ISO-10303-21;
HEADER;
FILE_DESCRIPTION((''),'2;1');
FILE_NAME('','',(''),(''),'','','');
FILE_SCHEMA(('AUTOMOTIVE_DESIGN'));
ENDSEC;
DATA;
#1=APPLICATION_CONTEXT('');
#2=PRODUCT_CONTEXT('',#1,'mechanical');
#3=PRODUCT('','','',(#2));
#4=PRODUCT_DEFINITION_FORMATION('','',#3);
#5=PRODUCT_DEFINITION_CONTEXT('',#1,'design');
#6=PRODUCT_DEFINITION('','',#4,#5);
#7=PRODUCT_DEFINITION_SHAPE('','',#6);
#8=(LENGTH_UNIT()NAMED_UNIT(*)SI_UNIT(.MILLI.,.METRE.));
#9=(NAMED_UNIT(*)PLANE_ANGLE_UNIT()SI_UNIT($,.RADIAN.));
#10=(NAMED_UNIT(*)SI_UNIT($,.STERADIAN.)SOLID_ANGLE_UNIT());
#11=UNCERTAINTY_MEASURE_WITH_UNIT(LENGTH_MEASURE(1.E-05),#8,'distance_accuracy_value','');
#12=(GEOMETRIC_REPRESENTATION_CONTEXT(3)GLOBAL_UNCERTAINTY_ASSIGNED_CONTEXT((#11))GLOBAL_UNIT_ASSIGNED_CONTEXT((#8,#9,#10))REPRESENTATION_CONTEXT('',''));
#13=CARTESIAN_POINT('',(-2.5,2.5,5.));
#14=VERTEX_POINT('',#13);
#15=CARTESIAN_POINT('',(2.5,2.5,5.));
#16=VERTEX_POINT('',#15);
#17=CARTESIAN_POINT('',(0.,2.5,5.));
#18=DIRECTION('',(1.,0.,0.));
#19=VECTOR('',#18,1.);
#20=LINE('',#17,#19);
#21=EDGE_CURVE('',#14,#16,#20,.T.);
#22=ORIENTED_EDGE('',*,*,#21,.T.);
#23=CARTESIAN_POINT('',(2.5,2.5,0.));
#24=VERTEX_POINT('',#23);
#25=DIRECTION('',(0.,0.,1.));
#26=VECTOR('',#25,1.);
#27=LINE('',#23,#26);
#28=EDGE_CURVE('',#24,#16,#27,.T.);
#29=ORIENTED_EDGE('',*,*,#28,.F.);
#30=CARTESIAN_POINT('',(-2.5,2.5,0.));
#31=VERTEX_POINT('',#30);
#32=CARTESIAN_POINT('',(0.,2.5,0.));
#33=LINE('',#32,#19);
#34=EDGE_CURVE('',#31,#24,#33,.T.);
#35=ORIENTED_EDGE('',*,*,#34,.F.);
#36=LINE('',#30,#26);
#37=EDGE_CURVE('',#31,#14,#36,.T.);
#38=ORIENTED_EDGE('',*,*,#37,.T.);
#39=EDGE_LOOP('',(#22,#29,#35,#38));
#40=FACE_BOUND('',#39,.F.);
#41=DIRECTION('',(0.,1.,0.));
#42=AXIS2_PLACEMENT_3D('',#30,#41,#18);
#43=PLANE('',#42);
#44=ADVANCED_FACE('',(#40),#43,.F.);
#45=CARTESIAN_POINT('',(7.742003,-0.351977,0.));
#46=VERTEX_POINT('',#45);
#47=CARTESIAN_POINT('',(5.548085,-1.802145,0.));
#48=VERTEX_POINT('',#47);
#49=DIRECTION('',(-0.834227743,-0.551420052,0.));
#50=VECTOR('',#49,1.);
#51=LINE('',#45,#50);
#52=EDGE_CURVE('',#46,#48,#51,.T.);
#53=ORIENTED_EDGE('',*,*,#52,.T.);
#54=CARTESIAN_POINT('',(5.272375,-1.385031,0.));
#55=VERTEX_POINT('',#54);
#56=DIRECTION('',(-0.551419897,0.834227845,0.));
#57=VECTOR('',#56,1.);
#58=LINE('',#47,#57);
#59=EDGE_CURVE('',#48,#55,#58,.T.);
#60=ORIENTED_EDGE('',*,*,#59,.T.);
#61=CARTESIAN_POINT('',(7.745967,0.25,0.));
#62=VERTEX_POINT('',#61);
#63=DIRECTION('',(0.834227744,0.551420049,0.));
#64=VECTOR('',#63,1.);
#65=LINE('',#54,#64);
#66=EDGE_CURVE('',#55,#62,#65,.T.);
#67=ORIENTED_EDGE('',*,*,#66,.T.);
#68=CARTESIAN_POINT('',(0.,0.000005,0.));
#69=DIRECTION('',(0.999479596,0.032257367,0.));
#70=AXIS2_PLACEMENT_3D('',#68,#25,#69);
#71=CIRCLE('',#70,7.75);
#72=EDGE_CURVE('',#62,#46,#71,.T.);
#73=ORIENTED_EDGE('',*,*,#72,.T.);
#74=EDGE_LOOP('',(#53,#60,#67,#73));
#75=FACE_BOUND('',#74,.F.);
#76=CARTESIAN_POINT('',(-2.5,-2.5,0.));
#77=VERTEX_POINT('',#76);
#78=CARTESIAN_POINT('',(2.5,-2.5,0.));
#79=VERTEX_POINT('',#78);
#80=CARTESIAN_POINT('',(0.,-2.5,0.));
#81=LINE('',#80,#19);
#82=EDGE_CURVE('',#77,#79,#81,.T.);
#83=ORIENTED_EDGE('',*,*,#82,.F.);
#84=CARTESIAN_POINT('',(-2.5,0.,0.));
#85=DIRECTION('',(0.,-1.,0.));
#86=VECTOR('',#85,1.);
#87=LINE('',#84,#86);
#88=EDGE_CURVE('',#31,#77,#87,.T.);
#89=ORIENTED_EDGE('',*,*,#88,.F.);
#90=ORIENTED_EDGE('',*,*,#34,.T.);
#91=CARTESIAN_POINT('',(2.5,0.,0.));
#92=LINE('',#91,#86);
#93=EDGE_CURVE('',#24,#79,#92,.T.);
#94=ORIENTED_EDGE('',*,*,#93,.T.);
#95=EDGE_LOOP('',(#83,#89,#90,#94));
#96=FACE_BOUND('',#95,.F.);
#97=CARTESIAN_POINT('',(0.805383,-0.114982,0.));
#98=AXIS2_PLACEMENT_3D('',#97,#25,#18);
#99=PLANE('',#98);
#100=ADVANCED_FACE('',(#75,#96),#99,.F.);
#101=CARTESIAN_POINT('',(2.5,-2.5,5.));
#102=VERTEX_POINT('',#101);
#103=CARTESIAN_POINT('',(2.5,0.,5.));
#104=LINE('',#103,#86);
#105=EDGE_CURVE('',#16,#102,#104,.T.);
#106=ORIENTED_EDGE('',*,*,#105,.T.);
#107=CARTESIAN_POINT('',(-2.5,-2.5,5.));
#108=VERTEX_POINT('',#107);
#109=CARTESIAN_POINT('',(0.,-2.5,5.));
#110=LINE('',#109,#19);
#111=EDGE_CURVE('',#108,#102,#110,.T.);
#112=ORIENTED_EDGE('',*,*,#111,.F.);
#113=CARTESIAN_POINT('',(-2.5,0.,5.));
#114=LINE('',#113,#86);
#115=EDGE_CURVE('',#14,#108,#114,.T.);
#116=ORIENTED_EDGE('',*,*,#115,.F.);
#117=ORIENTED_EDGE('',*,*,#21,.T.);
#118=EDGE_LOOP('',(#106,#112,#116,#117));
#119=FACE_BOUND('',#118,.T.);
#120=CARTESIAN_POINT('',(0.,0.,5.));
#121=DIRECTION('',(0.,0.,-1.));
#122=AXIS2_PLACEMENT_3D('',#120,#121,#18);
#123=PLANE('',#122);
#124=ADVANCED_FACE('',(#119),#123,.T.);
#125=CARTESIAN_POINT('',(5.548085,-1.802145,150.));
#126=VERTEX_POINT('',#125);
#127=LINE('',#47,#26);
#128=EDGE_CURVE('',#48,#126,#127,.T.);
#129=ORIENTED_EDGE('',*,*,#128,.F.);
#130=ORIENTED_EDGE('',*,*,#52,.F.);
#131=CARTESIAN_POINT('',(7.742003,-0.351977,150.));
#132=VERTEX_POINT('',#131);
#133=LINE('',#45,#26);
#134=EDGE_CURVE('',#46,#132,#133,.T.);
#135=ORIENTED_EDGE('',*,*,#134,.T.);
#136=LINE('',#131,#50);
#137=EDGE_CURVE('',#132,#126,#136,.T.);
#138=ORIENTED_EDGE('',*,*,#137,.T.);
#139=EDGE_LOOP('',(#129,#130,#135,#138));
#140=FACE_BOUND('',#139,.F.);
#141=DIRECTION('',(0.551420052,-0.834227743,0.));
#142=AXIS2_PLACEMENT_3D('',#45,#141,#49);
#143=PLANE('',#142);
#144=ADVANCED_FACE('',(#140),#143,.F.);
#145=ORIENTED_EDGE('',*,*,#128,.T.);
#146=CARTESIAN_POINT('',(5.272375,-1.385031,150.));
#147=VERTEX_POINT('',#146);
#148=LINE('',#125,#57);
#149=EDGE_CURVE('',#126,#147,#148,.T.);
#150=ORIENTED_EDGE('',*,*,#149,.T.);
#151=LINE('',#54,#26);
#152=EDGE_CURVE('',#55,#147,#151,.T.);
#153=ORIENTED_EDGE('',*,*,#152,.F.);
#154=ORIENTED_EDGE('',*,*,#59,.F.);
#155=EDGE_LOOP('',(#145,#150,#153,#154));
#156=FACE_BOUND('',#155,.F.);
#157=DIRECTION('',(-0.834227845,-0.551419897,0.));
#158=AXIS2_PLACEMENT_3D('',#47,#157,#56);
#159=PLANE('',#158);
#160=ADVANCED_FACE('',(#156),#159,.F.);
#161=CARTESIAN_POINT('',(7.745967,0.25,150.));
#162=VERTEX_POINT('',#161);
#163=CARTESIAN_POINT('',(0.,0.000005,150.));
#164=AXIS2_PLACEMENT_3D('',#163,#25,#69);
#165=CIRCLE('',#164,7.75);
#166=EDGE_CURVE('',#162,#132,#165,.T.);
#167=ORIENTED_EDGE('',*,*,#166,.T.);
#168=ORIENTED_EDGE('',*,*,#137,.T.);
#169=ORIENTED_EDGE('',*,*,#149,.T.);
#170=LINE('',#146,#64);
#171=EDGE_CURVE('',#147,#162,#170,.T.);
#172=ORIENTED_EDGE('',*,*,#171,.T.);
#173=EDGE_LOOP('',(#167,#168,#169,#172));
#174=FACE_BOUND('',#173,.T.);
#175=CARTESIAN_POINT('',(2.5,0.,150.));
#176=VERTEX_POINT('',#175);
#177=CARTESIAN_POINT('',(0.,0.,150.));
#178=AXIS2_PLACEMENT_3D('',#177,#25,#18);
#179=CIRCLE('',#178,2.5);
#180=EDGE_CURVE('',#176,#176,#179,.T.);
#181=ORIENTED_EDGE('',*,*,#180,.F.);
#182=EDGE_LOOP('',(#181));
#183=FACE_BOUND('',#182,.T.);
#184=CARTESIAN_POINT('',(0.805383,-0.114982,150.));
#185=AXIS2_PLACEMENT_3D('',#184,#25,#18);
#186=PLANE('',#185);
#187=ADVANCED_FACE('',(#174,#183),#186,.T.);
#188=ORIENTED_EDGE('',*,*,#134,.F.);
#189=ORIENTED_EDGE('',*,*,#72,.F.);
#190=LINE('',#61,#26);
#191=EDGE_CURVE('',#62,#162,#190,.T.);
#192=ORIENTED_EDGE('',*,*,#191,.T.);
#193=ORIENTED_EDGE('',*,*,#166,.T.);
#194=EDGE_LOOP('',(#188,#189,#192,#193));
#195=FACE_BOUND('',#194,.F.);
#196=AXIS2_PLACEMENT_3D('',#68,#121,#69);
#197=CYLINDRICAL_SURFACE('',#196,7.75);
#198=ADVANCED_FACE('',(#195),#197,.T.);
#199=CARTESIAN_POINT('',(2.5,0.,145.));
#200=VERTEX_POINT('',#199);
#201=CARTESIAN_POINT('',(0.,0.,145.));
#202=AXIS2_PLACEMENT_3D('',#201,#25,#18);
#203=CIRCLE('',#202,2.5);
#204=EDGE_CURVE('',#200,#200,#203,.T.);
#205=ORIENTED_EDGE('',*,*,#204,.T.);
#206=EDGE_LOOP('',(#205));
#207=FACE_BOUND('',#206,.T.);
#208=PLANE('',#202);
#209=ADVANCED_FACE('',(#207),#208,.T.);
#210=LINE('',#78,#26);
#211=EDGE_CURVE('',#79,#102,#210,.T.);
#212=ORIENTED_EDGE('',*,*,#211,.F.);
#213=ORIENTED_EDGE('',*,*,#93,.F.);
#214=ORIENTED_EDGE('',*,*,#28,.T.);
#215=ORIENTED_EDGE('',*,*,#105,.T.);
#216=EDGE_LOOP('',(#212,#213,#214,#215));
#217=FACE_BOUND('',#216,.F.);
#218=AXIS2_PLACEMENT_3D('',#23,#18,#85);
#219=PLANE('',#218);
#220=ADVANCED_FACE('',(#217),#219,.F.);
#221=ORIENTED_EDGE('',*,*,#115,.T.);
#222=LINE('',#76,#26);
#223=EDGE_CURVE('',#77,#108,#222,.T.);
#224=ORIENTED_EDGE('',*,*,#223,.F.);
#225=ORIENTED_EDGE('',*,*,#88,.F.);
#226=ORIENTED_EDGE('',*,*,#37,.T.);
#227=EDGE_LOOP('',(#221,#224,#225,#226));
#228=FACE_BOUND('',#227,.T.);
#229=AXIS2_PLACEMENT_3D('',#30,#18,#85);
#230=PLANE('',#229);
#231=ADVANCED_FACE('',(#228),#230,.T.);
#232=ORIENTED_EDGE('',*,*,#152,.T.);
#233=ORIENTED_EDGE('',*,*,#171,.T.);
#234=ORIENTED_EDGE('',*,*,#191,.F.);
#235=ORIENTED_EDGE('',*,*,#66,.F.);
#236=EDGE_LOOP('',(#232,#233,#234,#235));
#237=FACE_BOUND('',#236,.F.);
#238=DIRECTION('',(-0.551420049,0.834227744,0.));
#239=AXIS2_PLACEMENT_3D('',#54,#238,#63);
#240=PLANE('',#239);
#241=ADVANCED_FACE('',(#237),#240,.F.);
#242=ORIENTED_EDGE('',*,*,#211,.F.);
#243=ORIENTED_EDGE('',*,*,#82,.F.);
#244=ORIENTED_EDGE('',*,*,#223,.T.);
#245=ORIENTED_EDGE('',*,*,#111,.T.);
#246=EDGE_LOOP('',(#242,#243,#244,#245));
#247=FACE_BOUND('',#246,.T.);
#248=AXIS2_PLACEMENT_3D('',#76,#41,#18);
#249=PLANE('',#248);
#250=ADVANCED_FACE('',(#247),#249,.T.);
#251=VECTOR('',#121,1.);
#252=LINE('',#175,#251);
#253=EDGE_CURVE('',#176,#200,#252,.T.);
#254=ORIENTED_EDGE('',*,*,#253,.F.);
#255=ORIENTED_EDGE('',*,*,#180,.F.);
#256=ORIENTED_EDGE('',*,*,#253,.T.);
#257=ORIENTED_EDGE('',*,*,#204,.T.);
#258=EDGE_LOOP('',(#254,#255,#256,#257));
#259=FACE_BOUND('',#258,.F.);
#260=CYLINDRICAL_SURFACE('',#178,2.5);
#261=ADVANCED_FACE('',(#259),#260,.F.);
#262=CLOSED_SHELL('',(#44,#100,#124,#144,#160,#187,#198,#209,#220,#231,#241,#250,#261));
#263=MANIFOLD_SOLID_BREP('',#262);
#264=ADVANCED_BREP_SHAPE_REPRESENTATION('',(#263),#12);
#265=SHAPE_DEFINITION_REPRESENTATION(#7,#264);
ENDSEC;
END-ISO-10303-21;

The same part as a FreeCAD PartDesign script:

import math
import FreeCAD as App
import Part
import Sketcher

V = App.Vector
Q = App.Units.Quantity

doc = App.newDocument("Part")
body = doc.addObject("PartDesign::Body", "Body")

sketch1 = body.newObject("Sketcher::SketchObject", "Sketch")
sketch1.AttachmentSupport = (doc.getObject("XY_Plane"), [""])
sketch1.MapMode = "FlatFace"
sketch1.addGeometry(Part.LineSegment(V(5.3, -1.4, 0), V(7.7, 0.2, 0)), False)
sketch1.addGeometry(Part.ArcOfCircle(Part.Circle(V(0, 0, 0), V(0, 0, 1), 7.8), math.radians(2), math.radians(357)), False)
sketch1.addGeometry(Part.LineSegment(V(7.7, -0.4, 0), V(5.5, -1.8, 0)), False)
sketch1.addGeometry(Part.LineSegment(V(5.5, -1.8, 0), V(5.3, -1.4, 0)), False)
sketch1.addConstraint(Sketcher.Constraint("Coincident", 0, 2, 1, 1))
sketch1.addConstraint(Sketcher.Constraint("Coincident", 1, 2, 2, 1))
sketch1.addConstraint(Sketcher.Constraint("Coincident", 2, 2, 3, 1))
sketch1.addConstraint(Sketcher.Constraint("Coincident", 3, 2, 0, 1))
sketch1.addConstraint(Sketcher.Constraint("Coincident", 1, 3, -1, 1))
sketch1.addConstraint(Sketcher.Constraint("Parallel", 0, 2))
sketch1.addConstraint(Sketcher.Constraint("Perpendicular", 2, 3))
sketch1.addConstraint(Sketcher.Constraint("Radius", 1, Q("7.75 mm")))
sketch1.addConstraint(Sketcher.Constraint("Distance", 3, Q("0.5 mm")))
sketch1.addConstraint(Sketcher.Constraint("DistanceY", -1, 1, 0, 2, Q("0.25 mm")))
sketch1.addConstraint(Sketcher.Constraint("Distance", 2, Q("2.629879 mm")))
sketch1.addConstraint(Sketcher.Constraint("DistanceY", 3, 2, -1, 1, Q("1.385031 mm")))
pad1 = body.newObject("PartDesign::Pad", "Pad")
pad1.Profile = sketch1
pad1.Length = 150

sketch2 = body.newObject("Sketcher::SketchObject", "Sketch001")
sketch2.AttachmentSupport = (doc.getObject("XY_Plane"), [""])
sketch2.MapMode = "FlatFace"
sketch2.AttachmentOffset = App.Placement(V(0, 0, 150), App.Rotation())
sketch2.addGeometry(Part.Circle(V(0, 0, 0), V(0, 0, 1), 2.5), False)
sketch2.addConstraint(Sketcher.Constraint("Coincident", 0, 3, -1, 1))
sketch2.addConstraint(Sketcher.Constraint("Diameter", 0, Q("5 mm")))
pocket1 = body.newObject("PartDesign::Pocket", "Pocket")
pocket1.Profile = sketch2
pocket1.Length = 5

sketch3 = body.newObject("Sketcher::SketchObject", "Sketch002")
sketch3.AttachmentSupport = (doc.getObject("XY_Plane"), [""])
sketch3.MapMode = "FlatFace"
sketch3.addGeometry(Part.LineSegment(V(-2, -2, 0), V(-2, 2, 0)), False)
sketch3.addGeometry(Part.LineSegment(V(-2, 2, 0), V(2, 2, 0)), False)
sketch3.addGeometry(Part.LineSegment(V(2, 2, 0), V(2, -2, 0)), False)
sketch3.addGeometry(Part.LineSegment(V(2, -2, 0), V(-2, -2, 0)), False)
sketch3.addConstraint(Sketcher.Constraint("Coincident", 0, 2, 1, 1))
sketch3.addConstraint(Sketcher.Constraint("Coincident", 1, 2, 2, 1))
sketch3.addConstraint(Sketcher.Constraint("Coincident", 2, 2, 3, 1))
sketch3.addConstraint(Sketcher.Constraint("Coincident", 3, 2, 0, 1))
sketch3.addConstraint(Sketcher.Constraint("Vertical", 0))
sketch3.addConstraint(Sketcher.Constraint("Horizontal", 1))
sketch3.addConstraint(Sketcher.Constraint("Vertical", 2))
sketch3.addConstraint(Sketcher.Constraint("Horizontal", 3))
sketch3.addConstraint(Sketcher.Constraint("Symmetric", 0, 2, 2, 2, -1, 1))
sketch3.addConstraint(Sketcher.Constraint("Equal", 3, 0))
sketch3.addConstraint(Sketcher.Constraint("DistanceX", 1, 1, 1, 2, Q("5 mm")))
pocket2 = body.newObject("PartDesign::Pocket", "Pocket001")
pocket2.Profile = sketch3
pocket2.Length = 5
pocket2.Reversed = True

doc.recompute()
